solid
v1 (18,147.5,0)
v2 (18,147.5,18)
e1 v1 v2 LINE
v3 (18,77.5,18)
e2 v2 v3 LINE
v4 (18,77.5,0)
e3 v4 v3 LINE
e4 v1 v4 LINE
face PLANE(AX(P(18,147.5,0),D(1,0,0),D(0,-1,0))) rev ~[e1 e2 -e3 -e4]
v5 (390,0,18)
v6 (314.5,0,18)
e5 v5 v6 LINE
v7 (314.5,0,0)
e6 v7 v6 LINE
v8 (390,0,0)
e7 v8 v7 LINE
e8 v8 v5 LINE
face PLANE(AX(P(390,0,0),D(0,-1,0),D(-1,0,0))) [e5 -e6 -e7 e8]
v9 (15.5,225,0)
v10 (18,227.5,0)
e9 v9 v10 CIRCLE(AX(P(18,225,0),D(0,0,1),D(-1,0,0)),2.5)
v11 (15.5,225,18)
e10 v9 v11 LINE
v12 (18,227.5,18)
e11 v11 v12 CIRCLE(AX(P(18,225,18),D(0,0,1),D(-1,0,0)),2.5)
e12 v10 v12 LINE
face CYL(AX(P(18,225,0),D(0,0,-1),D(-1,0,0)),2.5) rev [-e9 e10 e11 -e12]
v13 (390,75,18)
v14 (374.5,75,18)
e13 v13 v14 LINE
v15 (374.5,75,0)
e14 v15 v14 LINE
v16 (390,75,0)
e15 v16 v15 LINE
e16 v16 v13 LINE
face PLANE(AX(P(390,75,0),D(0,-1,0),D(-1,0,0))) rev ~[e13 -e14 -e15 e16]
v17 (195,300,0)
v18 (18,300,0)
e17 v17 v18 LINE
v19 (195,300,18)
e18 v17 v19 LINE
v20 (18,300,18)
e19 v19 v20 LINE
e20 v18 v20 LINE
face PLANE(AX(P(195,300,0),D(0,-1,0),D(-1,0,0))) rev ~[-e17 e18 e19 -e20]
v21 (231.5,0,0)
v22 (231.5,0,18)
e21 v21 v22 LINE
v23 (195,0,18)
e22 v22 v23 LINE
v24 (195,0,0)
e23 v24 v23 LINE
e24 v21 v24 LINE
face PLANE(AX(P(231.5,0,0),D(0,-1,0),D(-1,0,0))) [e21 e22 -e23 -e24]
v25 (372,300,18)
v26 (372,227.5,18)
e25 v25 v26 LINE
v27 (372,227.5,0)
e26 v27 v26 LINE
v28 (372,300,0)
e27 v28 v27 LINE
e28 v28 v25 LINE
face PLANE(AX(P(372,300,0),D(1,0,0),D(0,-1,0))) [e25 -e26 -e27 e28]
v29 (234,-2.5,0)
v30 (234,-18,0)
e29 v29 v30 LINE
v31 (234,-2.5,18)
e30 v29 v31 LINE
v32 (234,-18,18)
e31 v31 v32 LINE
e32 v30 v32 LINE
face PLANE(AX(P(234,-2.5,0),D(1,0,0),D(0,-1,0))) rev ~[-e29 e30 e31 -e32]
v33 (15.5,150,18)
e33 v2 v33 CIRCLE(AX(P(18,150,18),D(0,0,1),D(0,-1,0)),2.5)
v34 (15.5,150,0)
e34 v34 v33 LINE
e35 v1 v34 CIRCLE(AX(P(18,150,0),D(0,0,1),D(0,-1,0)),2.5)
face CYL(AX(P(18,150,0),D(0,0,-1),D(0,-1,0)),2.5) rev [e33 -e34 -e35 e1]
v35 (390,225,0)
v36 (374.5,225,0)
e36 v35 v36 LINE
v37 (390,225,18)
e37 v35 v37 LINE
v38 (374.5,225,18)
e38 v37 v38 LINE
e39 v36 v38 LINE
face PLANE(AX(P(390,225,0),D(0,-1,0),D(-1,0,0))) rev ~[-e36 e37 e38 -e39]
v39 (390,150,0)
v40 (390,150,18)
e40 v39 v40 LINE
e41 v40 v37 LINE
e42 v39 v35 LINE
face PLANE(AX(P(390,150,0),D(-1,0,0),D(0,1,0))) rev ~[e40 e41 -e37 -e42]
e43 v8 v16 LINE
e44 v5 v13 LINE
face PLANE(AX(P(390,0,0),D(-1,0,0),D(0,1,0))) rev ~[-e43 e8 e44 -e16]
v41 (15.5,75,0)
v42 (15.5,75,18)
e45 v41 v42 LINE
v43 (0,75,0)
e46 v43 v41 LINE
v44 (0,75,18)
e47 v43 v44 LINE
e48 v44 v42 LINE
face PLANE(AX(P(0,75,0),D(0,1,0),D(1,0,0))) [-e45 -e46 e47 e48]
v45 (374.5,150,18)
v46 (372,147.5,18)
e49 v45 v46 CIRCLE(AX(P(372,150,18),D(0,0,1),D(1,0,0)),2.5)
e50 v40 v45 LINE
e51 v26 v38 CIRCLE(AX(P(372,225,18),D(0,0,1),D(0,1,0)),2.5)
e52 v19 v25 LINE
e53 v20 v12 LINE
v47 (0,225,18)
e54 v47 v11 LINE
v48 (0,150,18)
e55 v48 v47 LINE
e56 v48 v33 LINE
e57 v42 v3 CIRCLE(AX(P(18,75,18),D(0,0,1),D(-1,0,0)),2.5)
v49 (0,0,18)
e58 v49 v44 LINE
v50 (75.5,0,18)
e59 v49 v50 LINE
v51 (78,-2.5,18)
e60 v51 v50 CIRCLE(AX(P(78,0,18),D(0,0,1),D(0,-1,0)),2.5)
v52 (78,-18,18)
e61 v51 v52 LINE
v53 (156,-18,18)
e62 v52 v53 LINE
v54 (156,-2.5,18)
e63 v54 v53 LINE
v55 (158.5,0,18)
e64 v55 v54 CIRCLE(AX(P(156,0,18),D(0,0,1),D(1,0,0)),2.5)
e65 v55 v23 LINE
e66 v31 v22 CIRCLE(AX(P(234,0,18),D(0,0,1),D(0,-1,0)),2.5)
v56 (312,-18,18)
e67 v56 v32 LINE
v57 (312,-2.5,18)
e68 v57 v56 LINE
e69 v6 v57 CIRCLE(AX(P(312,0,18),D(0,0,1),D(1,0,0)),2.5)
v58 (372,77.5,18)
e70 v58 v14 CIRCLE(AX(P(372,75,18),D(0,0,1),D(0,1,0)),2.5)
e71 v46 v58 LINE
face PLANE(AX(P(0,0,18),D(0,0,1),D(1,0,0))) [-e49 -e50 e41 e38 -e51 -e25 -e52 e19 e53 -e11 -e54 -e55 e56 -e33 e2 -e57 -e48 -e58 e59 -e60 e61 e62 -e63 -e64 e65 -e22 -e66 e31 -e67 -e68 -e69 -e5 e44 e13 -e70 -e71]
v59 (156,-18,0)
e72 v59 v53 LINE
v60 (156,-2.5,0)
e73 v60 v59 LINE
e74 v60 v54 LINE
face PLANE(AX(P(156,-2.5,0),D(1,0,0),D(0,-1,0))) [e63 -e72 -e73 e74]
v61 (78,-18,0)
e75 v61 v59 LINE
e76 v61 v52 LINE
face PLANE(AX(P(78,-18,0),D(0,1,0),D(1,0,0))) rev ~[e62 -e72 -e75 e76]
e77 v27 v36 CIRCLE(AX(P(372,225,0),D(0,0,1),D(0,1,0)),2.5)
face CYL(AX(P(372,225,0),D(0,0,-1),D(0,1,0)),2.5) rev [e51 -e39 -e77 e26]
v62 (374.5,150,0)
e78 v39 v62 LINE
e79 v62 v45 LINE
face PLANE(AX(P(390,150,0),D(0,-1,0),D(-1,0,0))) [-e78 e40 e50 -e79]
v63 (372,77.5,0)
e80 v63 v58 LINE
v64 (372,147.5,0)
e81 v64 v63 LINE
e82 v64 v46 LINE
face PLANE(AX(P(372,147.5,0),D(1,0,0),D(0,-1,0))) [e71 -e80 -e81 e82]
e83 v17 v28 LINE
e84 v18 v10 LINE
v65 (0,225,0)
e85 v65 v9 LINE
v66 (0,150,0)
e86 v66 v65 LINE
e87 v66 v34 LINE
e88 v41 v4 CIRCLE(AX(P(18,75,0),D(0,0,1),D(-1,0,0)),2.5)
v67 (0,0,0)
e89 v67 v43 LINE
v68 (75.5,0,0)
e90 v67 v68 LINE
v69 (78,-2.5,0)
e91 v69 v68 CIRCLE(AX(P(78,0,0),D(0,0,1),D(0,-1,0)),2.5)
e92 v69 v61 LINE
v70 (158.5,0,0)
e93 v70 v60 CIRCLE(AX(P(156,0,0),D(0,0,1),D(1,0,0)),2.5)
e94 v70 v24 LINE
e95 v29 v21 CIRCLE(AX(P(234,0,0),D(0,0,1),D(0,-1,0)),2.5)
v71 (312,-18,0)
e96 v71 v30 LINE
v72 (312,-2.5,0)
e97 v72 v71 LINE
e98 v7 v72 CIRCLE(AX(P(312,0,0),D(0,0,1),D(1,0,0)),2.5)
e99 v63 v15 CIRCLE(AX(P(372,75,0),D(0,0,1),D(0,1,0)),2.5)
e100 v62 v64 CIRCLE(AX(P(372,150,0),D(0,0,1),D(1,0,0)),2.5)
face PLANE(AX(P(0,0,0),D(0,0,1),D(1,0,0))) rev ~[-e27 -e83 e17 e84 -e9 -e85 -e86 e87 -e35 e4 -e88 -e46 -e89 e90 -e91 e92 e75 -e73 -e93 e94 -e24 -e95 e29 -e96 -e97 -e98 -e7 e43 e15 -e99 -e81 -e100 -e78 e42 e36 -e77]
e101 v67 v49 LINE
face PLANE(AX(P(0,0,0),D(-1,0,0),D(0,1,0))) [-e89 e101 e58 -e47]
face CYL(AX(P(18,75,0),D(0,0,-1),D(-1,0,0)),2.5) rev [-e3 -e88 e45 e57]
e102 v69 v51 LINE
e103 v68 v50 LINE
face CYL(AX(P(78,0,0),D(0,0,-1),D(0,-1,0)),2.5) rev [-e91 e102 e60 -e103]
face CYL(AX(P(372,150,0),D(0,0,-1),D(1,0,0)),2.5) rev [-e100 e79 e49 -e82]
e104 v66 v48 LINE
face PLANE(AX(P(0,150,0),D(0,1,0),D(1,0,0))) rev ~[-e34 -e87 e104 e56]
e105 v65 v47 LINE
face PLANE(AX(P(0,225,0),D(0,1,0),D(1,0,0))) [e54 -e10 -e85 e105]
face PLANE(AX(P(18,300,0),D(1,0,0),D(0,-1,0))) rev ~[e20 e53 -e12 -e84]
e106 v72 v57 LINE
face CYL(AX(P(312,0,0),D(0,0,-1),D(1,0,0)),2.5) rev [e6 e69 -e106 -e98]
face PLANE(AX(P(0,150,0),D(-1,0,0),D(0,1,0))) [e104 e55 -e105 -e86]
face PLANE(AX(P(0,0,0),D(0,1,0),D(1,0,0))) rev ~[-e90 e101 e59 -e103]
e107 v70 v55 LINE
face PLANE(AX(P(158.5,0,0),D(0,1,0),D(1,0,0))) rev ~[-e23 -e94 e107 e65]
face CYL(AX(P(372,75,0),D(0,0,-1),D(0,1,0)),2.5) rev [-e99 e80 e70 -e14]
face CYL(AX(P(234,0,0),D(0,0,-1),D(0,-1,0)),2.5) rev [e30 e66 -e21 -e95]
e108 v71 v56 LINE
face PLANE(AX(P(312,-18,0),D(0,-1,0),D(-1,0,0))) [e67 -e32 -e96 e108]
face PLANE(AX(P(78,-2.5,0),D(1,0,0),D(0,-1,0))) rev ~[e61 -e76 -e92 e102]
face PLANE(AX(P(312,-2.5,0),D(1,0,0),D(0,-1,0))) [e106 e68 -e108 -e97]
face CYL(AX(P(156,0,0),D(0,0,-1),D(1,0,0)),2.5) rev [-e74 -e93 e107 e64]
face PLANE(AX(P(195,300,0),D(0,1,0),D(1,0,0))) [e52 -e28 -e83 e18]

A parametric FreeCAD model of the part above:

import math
import FreeCAD as App
import Part
import Sketcher
from FreeCAD import Vector

doc = App.newDocument("Part")
body = doc.addObject("PartDesign::Body", "Body")

sketch1 = doc.addObject("Sketcher::SketchObject", "Sketch")
body.addObject(sketch1)
sketch1.AttachmentSupport = (doc.XY_Plane, [""])
sketch1.MapMode = "FlatFace"
sketch1.addGeometry([
    Part.LineSegment(Vector(372, 300, 0), Vector(18, 300, 0)),
    Part.LineSegment(Vector(18, 300, 0), Vector(18, 227.5, 0)),
    Part.ArcOfCircle(Part.Circle(Vector(18, 225, 0), Vector(0, 0, 1), 2.5), math.radians(180), math.radians(450)),
    Part.LineSegment(Vector(15.5, 225, 0), Vector(0, 225, 0)),
    Part.LineSegment(Vector(0, 225, 0), Vector(0, 150, 0)),
    Part.LineSegment(Vector(0, 150, 0), Vector(15.5, 150, 0)),
    Part.ArcOfCircle(Part.Circle(Vector(18, 150, 0), Vector(0, 0, 1), 2.5), math.radians(-90), math.radians(180)),
    Part.LineSegment(Vector(18, 147.5, 0), Vector(18, 77.5, 0)),
    Part.ArcOfCircle(Part.Circle(Vector(18, 75, 0), Vector(0, 0, 1), 2.5), math.radians(180), math.radians(450)),
    Part.LineSegment(Vector(15.5, 75, 0), Vector(0, 75, 0)),
    Part.LineSegment(Vector(0, 75, 0), Vector(0, 0, 0)),
    Part.LineSegment(Vector(0, 0, 0), Vector(75.5, 0, 0)),
    Part.ArcOfCircle(Part.Circle(Vector(78, 0, 0), Vector(0, 0, 1), 2.5), math.radians(-90), math.radians(180)),
    Part.LineSegment(Vector(78, -2.5, 0), Vector(78, -18, 0)),
    Part.LineSegment(Vector(78, -18, 0), Vector(156, -18, 0)),
    Part.LineSegment(Vector(156, -18, 0), Vector(156, -2.5, 0)),
    Part.ArcOfCircle(Part.Circle(Vector(156, 0, 0), Vector(0, 0, 1), 2.5), math.radians(0), math.radians(270)),
    Part.LineSegment(Vector(158.5, 0, 0), Vector(231.5, 0, 0)),
    Part.ArcOfCircle(Part.Circle(Vector(234, 0, 0), Vector(0, 0, 1), 2.5), math.radians(-90), math.radians(180)),
    Part.LineSegment(Vector(234, -2.5, 0), Vector(234, -18, 0)),
    Part.LineSegment(Vector(234, -18, 0), Vector(312, -18, 0)),
    Part.LineSegment(Vector(312, -18, 0), Vector(312, -2.5, 0)),
    Part.ArcOfCircle(Part.Circle(Vector(312, 0, 0), Vector(0, 0, 1), 2.5), math.radians(0), math.radians(270)),
    Part.LineSegment(Vector(314.5, 0, 0), Vector(390, 0, 0)),
    Part.LineSegment(Vector(390, 0, 0), Vector(390, 75, 0)),
    Part.LineSegment(Vector(390, 75, 0), Vector(374.5, 75, 0)),
    Part.ArcOfCircle(Part.Circle(Vector(372, 75, 0), Vector(0, 0, 1), 2.5), math.radians(90), math.radians(360)),
    Part.LineSegment(Vector(372, 77.5, 0), Vector(372, 147.5, 0)),
    Part.ArcOfCircle(Part.Circle(Vector(372, 150, 0), Vector(0, 0, 1), 2.5), math.radians(0), math.radians(270)),
    Part.LineSegment(Vector(374.5, 150, 0), Vector(390, 150, 0)),
    Part.LineSegment(Vector(390, 150, 0), Vector(390, 225, 0)),
    Part.LineSegment(Vector(390, 225, 0), Vector(374.5, 225, 0)),
    Part.ArcOfCircle(Part.Circle(Vector(372, 225, 0), Vector(0, 0, 1), 2.5), math.radians(90), math.radians(360)),
    Part.LineSegment(Vector(372, 227.5, 0), Vector(372, 300, 0)),
], False)
sketch1.addConstraint([
    Sketcher.Constraint("Coincident", 0, 2, 1, 1),
    Sketcher.Constraint("Coincident", 1, 2, 2, 2),
    Sketcher.Constraint("Coincident", 2, 1, 3, 1),
    Sketcher.Constraint("Coincident", 3, 2, 4, 1),
    Sketcher.Constraint("Coincident", 4, 2, 5, 1),
    Sketcher.Constraint("Coincident", 5, 2, 6, 2),
    Sketcher.Constraint("Coincident", 6, 1, 7, 1),
    Sketcher.Constraint("Coincident", 7, 2, 8, 2),
    Sketcher.Constraint("Coincident", 8, 1, 9, 1),
    Sketcher.Constraint("Coincident", 9, 2, 10, 1),
    Sketcher.Constraint("Coincident", 10, 2, 11, 1),
    Sketcher.Constraint("Coincident", 11, 2, 12, 2),
    Sketcher.Constraint("Coincident", 12, 1, 13, 1),
    Sketcher.Constraint("Coincident", 13, 2, 14, 1),
    Sketcher.Constraint("Coincident", 14, 2, 15, 1),
    Sketcher.Constraint("Coincident", 15, 2, 16, 2),
    Sketcher.Constraint("Coincident", 16, 1, 17, 1),
    Sketcher.Constraint("Coincident", 17, 2, 18, 2),
    Sketcher.Constraint("Coincident", 18, 1, 19, 1),
    Sketcher.Constraint("Coincident", 19, 2, 20, 1),
    Sketcher.Constraint("Coincident", 20, 2, 21, 1),
    Sketcher.Constraint("Coincident", 21, 2, 22, 2),
    Sketcher.Constraint("Coincident", 22, 1, 23, 1),
    Sketcher.Constraint("Coincident", 23, 2, 24, 1),
    Sketcher.Constraint("Coincident", 24, 2, 25, 1),
    Sketcher.Constraint("Coincident", 25, 2, 26, 2),
    Sketcher.Constraint("Coincident", 26, 1, 27, 1),
    Sketcher.Constraint("Coincident", 27, 2, 28, 2),
    Sketcher.Constraint("Coincident", 28, 1, 29, 1),
    Sketcher.Constraint("Coincident", 29, 2, 30, 1),
    Sketcher.Constraint("Coincident", 30, 2, 31, 1),
    Sketcher.Constraint("Coincident", 31, 2, 32, 2),
    Sketcher.Constraint("Coincident", 32, 1, 33, 1),
    Sketcher.Constraint("Coincident", 33, 2, 0, 1),
    Sketcher.Constraint("Horizontal", 0),
    Sketcher.Constraint("Vertical", 1),
    Sketcher.Constraint("Horizontal", 3),
    Sketcher.Constraint("Vertical", 4),
    Sketcher.Constraint("Horizontal", 5),
    Sketcher.Constraint("Vertical", 7),
    Sketcher.Constraint("Horizontal", 9),
    Sketcher.Constraint("Vertical", 10),
    Sketcher.Constraint("Horizontal", 11),
    Sketcher.Constraint("Vertical", 13),
    Sketcher.Constraint("Horizontal", 14),
    Sketcher.Constraint("Vertical", 15),
    Sketcher.Constraint("Horizontal", 17),
    Sketcher.Constraint("Vertical", 19),
    Sketcher.Constraint("Horizontal", 20),
    Sketcher.Constraint("Vertical", 21),
    Sketcher.Constraint("Horizontal", 23),
    Sketcher.Constraint("Vertical", 24),
    Sketcher.Constraint("Horizontal", 25),
    Sketcher.Constraint("Vertical", 27),
    Sketcher.Constraint("Horizontal", 29),
    Sketcher.Constraint("Vertical", 30),
    Sketcher.Constraint("Horizontal", 31),
    Sketcher.Constraint("Vertical", 33),
    Sketcher.Constraint("Coincident", 10, 2, -1, 1),
    Sketcher.Constraint("Equal", 2, 6),
    Sketcher.Constraint("Equal", 6, 8),
    Sketcher.Constraint("Equal", 8, 12),
    Sketcher.Constraint("Equal", 12, 16),
    Sketcher.Constraint("Equal", 16, 18),
    Sketcher.Constraint("Equal", 18, 22),
    Sketcher.Constraint("Equal", 22, 26),
    Sketcher.Constraint("Equal", 26, 28),
    Sketcher.Constraint("Equal", 28, 32),
    Sketcher.Constraint("PointOnObject", 12, 3, -1),
    Sketcher.Constraint("PointOnObject", 16, 3, -1),
    Sketcher.Constraint("PointOnObject", 18, 3, -1),
    Sketcher.Constraint("PointOnObject", 22, 3, -1),
    Sketcher.Constraint("PointOnObject", 3, 2, -2),
    Sketcher.Constraint("PointOnObject", 16, 1, -1),
    Sketcher.Constraint("PointOnObject", 22, 1, -1),
    Sketcher.Constraint("Horizontal", 8, 3, 26, 3),
    Sketcher.Constraint("Horizontal", 6, 3, 28, 3),
    Sketcher.Constraint("Horizontal", 2, 3, 32, 3),
    Sketcher.Constraint("Horizontal", 32, 3, 2, 1),
    Sketcher.Constraint("Horizontal", 28, 3, 4, 2),
    Sketcher.Constraint("Horizontal", 26, 3, 8, 1),
    Sketcher.Constraint("Horizontal", 14, 2, 19, 2),
    Sketcher.Constraint("Horizontal", 9, 2, 24, 2),
    Sketcher.Constraint("Horizontal", 5, 2, 28, 1),
    Sketcher.Constraint("Horizontal", 3, 2, 30, 2),
    Sketcher.Constraint("Vertical", 2, 3, 6, 3),
    Sketcher.Constraint("Vertical", 6, 3, 8, 3),
    Sketcher.Constraint("Vertical", 26, 3, 28, 3),
    Sketcher.Constraint("Vertical", 28, 3, 32, 3),
    Sketcher.Constraint("Vertical", 8, 3, 0, 2),
    Sketcher.Constraint("Vertical", 1, 2, 6, 1),
    Sketcher.Constraint("Vertical", 16, 3, 14, 2),
    Sketcher.Constraint("Vertical", 22, 3, 20, 2),
    Sketcher.Constraint("Vertical", 32, 3, 26, 1),
    Sketcher.Constraint("Vertical", 24, 2, 29, 2),
    Sketcher.Constraint("Vertical", 27, 2, 32, 1),
    Sketcher.Constraint("Equal", 14, 20),
    Sketcher.Constraint("Equal", 11, 23),
    Sketcher.Constraint("Equal", 9, 25),
    Sketcher.Constraint("Equal", 4, 10),
    Sketcher.Constraint("Equal", 31, 13),
    Sketcher.Constraint("Radius", 2, 2.5),
    Sketcher.Constraint("DistanceX", 14, 1, 14, 2, 78.0),
    Sketcher.Constraint("DistanceY", 4, 2, 4, 1, 75.0),
    Sketcher.Constraint("DistanceX", 3, 2, 3, 1, 15.5),
    Sketcher.Constraint("DistanceX", -1, 1, 12, 3, 78.0),
    Sketcher.Constraint("DistanceY", -1, 1, 0, 2, 300.0),
    Sketcher.Constraint("DistanceX", -1, 1, 12, 1, 78.0),
    Sketcher.Constraint("DistanceY", 8, 3, 6, 3, 75.0),
    Sketcher.Constraint("DistanceX", 16, 3, 18, 3, 78.0),
    Sketcher.Constraint("DistanceX", 18, 3, 22, 3, 78.0),
])
pad1 = doc.addObject("PartDesign::Pad", "Pad")
body.addObject(pad1)
pad1.Profile = sketch1
pad1.Length = 18

doc.recompute()
